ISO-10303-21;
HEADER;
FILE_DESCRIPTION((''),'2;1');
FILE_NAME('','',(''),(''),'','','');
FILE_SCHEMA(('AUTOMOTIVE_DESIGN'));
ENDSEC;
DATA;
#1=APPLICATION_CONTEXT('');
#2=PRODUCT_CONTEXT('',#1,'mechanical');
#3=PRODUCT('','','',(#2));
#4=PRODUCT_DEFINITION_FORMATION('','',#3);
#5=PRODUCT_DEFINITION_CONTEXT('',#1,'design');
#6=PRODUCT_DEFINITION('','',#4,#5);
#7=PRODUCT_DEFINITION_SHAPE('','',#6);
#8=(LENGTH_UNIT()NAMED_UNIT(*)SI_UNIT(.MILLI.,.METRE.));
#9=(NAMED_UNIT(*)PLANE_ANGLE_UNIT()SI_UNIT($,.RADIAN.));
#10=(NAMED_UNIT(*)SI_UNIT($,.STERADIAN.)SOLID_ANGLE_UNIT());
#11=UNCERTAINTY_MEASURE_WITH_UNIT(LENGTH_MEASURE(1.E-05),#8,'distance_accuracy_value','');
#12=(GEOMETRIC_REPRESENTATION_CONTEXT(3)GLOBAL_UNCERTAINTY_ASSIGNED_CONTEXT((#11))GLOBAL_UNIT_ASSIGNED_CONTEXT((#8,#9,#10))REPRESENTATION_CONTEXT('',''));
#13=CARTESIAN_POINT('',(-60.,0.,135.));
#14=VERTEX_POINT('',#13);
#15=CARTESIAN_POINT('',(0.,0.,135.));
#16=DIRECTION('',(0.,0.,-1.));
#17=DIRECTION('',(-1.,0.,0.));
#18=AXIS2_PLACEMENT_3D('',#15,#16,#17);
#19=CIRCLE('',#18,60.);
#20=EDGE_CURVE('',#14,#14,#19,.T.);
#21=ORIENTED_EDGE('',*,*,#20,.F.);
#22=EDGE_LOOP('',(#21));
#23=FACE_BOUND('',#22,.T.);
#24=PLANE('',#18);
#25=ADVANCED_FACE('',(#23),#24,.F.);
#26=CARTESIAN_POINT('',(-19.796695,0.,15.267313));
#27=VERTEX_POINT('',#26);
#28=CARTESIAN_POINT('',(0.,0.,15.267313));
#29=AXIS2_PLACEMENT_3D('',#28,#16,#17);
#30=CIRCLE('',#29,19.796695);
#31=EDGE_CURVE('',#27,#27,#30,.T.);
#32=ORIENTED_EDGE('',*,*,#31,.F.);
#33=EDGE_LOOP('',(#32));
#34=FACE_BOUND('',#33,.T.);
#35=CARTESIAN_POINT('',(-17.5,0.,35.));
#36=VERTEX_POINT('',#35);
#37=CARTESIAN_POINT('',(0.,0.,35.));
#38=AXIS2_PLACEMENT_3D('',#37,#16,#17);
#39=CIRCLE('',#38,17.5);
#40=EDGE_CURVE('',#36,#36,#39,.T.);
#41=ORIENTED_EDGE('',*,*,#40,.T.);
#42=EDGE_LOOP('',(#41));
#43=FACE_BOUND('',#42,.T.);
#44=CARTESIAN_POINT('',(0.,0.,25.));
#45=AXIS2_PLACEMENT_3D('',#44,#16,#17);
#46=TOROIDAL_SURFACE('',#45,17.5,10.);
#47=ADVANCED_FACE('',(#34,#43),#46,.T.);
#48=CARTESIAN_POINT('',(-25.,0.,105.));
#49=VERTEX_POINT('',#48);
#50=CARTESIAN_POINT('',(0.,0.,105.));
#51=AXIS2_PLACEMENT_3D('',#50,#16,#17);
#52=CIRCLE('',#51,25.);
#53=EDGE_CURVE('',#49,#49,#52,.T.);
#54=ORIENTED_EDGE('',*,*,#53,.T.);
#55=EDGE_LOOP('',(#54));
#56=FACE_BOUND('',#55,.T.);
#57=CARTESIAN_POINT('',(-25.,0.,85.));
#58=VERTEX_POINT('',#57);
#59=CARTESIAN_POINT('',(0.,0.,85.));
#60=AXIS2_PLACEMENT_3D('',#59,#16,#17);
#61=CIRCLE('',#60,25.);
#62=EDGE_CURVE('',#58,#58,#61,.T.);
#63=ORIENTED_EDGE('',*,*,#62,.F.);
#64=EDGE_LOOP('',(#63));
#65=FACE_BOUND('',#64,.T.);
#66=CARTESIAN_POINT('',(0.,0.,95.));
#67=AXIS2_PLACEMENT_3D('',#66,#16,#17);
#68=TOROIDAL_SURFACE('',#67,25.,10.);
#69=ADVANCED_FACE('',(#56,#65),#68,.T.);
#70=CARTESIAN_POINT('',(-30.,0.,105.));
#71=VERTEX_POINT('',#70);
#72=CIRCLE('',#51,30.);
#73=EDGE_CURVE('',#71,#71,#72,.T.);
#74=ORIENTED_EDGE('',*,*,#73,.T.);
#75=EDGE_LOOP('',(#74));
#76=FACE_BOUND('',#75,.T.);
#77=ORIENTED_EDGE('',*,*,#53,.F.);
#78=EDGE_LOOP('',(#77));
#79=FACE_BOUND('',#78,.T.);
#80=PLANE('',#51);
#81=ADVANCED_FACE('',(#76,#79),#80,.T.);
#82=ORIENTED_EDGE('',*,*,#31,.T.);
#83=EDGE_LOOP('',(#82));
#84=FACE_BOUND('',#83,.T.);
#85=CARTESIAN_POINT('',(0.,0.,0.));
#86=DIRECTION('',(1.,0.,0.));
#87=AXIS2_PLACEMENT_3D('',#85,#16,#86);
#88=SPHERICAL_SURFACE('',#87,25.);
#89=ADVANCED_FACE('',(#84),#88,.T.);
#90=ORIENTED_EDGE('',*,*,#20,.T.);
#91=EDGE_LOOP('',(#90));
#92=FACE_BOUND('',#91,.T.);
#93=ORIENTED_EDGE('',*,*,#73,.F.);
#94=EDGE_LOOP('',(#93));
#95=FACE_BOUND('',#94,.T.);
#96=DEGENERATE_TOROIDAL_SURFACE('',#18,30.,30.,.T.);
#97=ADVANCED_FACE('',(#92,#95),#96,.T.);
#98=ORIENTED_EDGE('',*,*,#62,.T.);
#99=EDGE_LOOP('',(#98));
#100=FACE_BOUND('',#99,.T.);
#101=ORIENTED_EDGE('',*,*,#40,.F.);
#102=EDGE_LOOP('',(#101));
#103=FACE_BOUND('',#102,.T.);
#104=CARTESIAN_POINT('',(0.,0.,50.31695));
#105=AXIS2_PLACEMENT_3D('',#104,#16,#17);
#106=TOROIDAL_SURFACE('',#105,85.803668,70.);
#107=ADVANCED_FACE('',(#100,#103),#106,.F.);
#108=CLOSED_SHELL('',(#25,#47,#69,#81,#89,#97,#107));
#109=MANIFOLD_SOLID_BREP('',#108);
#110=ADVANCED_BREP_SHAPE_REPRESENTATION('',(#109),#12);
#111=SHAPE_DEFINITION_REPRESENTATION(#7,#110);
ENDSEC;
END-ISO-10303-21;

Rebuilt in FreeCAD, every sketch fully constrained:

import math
import FreeCAD as App
import Part
import Sketcher

doc = App.newDocument("Part")
params = doc.addObject("Spreadsheet::Sheet", "Params")
for row, (alias, value) in enumerate([
    ("sketch1_radius", "30 mm"),
    ("sketch1_radius2", "10 mm"),
    ("sketch1_radius3", "70 mm"),
    ("sketch1_radius4", "25 mm"),
    ("sketch1_width", "60 mm"),
    ("revolution_angle", "360 deg"),
], start=1):
    params.set(f"A{row}", alias)
    params.set(f"B{row}", "=" + value)
    params.setAlias(f"B{row}", alias)

body = doc.addObject("PartDesign::Body", "Body")

# Sketch on XZ plane
sketch1 = body.newObject("Sketcher::SketchObject", "Sketch")
sketch1.AttachmentSupport = (doc.getObject("XZ_Plane"), [""])
sketch1.MapMode = "FlatFace"
sketch1.addGeometry(Part.LineSegment(App.Vector(0, 135, 0), App.Vector(60, 135, 0)), False)
sketch1.addGeometry(Part.ArcOfCircle(Part.Circle(App.Vector(30, 135, 0), App.Vector(0, 0, 1), 30), math.radians(-90), math.radians(0)), False)
sketch1.addGeometry(Part.LineSegment(App.Vector(30, 105, 0), App.Vector(25, 105, 0)), False)
sketch1.addGeometry(Part.ArcOfCircle(Part.Circle(App.Vector(25, 95, 0), App.Vector(0, 0, 1), 10), math.radians(-90), math.radians(90)), False)
sketch1.addGeometry(Part.ArcOfCircle(Part.Circle(App.Vector(85.803668, 50.31695, 0), App.Vector(0, 0, 1), 70), math.radians(150.299111), math.radians(192.639358)), False)
sketch1.addGeometry(Part.ArcOfCircle(Part.Circle(App.Vector(17.5, 25, 0), App.Vector(0, 0, 1), 10), math.radians(-76.722384), math.radians(90)), False)
sketch1.addGeometry(Part.ArcOfCircle(Part.Circle(App.Vector(0, 0, 0), App.Vector(0, 0, 1), 25), math.radians(0), math.radians(37.639594)), False)
sketch1.addGeometry(Part.ArcOfCircle(Part.Circle(App.Vector(0, 0, 0), App.Vector(0, 0, 1), 25), math.radians(-90), math.radians(0)), False)
sketch1.addGeometry(Part.LineSegment(App.Vector(0, -25, 0), App.Vector(0, 135, 0)), False)
sketch1.addConstraint(Sketcher.Constraint("Coincident", 0, 2, 1, 2))
sketch1.addConstraint(Sketcher.Constraint("Tangent", 1, 1, 2, 1))
sketch1.addConstraint(Sketcher.Constraint("Tangent", 2, 2, 3, 2))
sketch1.addConstraint(Sketcher.Constraint("Coincident", 3, 1, 4, 1))
sketch1.addConstraint(Sketcher.Constraint("Coincident", 4, 2, 5, 2))
sketch1.addConstraint(Sketcher.Constraint("Coincident", 5, 1, 6, 2))
sketch1.addConstraint(Sketcher.Constraint("Tangent", 6, 1, 7, 2))
sketch1.addConstraint(Sketcher.Constraint("Coincident", 7, 1, 8, 1))
sketch1.addConstraint(Sketcher.Constraint("Coincident", 8, 2, 0, 1))
sketch1.addConstraint(Sketcher.Constraint("Horizontal", 0))
sketch1.addConstraint(Sketcher.Constraint("Horizontal", 2))
sketch1.addConstraint(Sketcher.Constraint("Vertical", 8))
sketch1.addConstraint(Sketcher.Constraint("Coincident", 6, 3, -1, 1))
sketch1.addConstraint(Sketcher.Constraint("Equal", 3, 5))
sketch1.addConstraint(Sketcher.Constraint("Equal", 6, 7))
sketch1.addConstraint(Sketcher.Constraint("PointOnObject", 6, 1, -1))
sketch1.addConstraint(Sketcher.Constraint("PointOnObject", 7, 1, -2))
sketch1.addConstraint(Sketcher.Constraint("Horizontal", 1, 3, 0, 2))
sketch1.addConstraint(Sketcher.Constraint("Vertical", 2, 2, 3, 1))
sketch1.addConstraint(Sketcher.Constraint("Vertical", 5, 3, 4, 2))
sketch1.addConstraint(Sketcher.Constraint("Vertical", 3, 1, 6, 1))
sketch1.addConstraint(Sketcher.Constraint("Radius", 1, 30.0))
sketch1.addConstraint(Sketcher.Constraint("Radius", 3, 10.0))
sketch1.addConstraint(Sketcher.Constraint("Radius", 4, 70.0))
sketch1.addConstraint(Sketcher.Constraint("Radius", 6, 25.0))
sketch1.addConstraint(Sketcher.Constraint("DistanceX", 0, 1, 0, 2, 60.0))
sketch1.addConstraint(Sketcher.Constraint("DistanceY", 8, 1, 8, 2, 160.0))
sketch1.addConstraint(Sketcher.Constraint("DistanceY", -1, 1, 5, 3, 25.0))
sketch1.addConstraint(Sketcher.Constraint("DistanceX", -1, 1, 5, 3, 17.5))
sketch1.setExpression("Constraints[21]", "Params.sketch1_radius")
sketch1.setExpression("Constraints[22]", "Params.sketch1_radius2")
sketch1.setExpression("Constraints[23]", "Params.sketch1_radius3")
sketch1.setExpression("Constraints[24]", "Params.sketch1_radius4")
sketch1.setExpression("Constraints[25]", "Params.sketch1_width")
revolution = body.newObject("PartDesign::Revolution", "Revolution")
revolution.Profile = sketch1
revolution.ReferenceAxis = (sketch1, ["V_Axis"])
revolution.setExpression("Angle", "Params.revolution_angle")

doc.recompute()
